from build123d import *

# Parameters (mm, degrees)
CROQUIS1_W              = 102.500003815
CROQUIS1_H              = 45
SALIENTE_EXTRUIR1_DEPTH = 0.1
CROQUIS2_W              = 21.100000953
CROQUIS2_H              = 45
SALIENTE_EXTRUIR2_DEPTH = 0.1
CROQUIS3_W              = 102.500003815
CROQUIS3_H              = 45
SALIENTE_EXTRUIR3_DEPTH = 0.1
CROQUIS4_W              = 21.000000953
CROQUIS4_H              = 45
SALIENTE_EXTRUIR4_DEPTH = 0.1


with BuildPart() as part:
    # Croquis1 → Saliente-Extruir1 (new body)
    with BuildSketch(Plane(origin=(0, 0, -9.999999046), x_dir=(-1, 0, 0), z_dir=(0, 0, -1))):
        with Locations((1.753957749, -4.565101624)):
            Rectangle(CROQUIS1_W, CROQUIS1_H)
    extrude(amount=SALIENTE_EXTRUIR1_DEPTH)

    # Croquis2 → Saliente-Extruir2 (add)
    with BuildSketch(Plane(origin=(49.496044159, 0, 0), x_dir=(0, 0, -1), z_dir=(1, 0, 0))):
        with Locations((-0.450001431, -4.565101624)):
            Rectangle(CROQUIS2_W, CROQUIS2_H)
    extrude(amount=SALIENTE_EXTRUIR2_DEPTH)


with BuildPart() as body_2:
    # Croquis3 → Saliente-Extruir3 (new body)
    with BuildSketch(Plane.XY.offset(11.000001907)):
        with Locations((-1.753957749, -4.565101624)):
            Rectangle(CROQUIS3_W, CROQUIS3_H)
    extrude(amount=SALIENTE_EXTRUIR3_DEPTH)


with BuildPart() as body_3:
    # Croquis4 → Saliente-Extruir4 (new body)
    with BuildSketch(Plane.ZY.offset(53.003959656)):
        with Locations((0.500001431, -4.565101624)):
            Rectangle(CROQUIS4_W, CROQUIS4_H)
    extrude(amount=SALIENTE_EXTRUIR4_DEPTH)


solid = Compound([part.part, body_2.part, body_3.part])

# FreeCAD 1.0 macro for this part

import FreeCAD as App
import Part
import Sketcher

V = App.Vector
Q = App.Units.Quantity

doc = App.newDocument("Part")
body = doc.addObject("PartDesign::Body", "Body")

# Sketch on XY plane
sketch1 = doc.addObject("Sketcher::SketchObject", "Sketch")
body.addObject(sketch1)
sketch1.AttachmentSupport = (doc.XY_Plane, [""])
sketch1.MapMode = "FlatFace"
sketch1.AttachmentOffset = App.Placement(V(0, 0, -9.999999), App.Rotation())
sketch1.addGeometry([
    Part.LineSegment(V(49, 18, 0), V(49, -27, 0)),
    Part.LineSegment(V(49, -27, 0), V(-53, -27, 0)),
    Part.LineSegment(V(-53, -27, 0), V(-53, 18, 0)),
    Part.LineSegment(V(-53, 18, 0), V(49, 18, 0)),
], False)
sketch1.addConstraint([
    Sketcher.Constraint("Coincident", 0, 2, 1, 1),
    Sketcher.Constraint("Coincident", 1, 2, 2, 1),
    Sketcher.Constraint("Coincident", 2, 2, 3, 1),
    Sketcher.Constraint("Coincident", 3, 2, 0, 1),
    Sketcher.Constraint("Vertical", 0),
    Sketcher.Constraint("Horizontal", 1),
    Sketcher.Constraint("Vertical", 2),
    Sketcher.Constraint("Horizontal", 3),
    Sketcher.Constraint("DistanceY", 0, 2, 0, 1, Q("45 mm")),
    Sketcher.Constraint("DistanceY", 0, 2, -1, 1, Q("27.065102 mm")),
    Sketcher.Constraint("DistanceX", 1, 2, 1, 1, Q("102.500004 mm")),
    Sketcher.Constraint("DistanceX", 1, 2, -1, 1, Q("53.00396 mm")),
])
pad1 = doc.addObject("PartDesign::Pad", "Pad")
body.addObject(pad1)
pad1.Profile = sketch1
pad1.Length = 0.1
pad1.Reversed = True

# Sketch on YZ plane
sketch2 = doc.addObject("Sketcher::SketchObject", "Sketch001")
body.addObject(sketch2)
sketch2.AttachmentSupport = (doc.YZ_Plane, [""])
sketch2.MapMode = "FlatFace"
sketch2.AttachmentOffset = App.Placement(V(0, 0, 49.496044), App.Rotation())
sketch2.addGeometry([
    Part.LineSegment(V(18, 11, 0), V(-27, 11, 0)),
    Part.LineSegment(V(-27, 11, 0), V(-27, -10, 0)),
    Part.LineSegment(V(-27, -10, 0), V(18, -10, 0)),
    Part.LineSegment(V(18, -10, 0), V(18, 11, 0)),
], False)
sketch2.addConstraint([
    Sketcher.Constraint("Coincident", 0, 2, 1, 1),
    Sketcher.Constraint("Coincident", 1, 2, 2, 1),
    Sketcher.Constraint("Coincident", 2, 2, 3, 1),
    Sketcher.Constraint("Coincident", 3, 2, 0, 1),
    Sketcher.Constraint("Horizontal", 0),
    Sketcher.Constraint("Vertical", 1),
    Sketcher.Constraint("Horizontal", 2),
    Sketcher.Constraint("Vertical", 3),
    Sketcher.Constraint("DistanceX", 0, 2, 0, 1, Q("45 mm")),
    Sketcher.Constraint("DistanceY", 1, 2, 1, 1, Q("21.100001 mm")),
    Sketcher.Constraint("DistanceY", -1, 1, 0, 2, Q("11.000002 mm")),
    Sketcher.Constraint("DistanceX", 0, 2, -1, 1, Q("27.065102 mm")),
])
pad2 = doc.addObject("PartDesign::Pad", "Pad001")
body.addObject(pad2)
pad2.Profile = sketch2
pad2.Length = 0.1
body2 = doc.addObject("PartDesign::Body", "Body001")

# Sketch on XY plane
sketch3 = doc.addObject("Sketcher::SketchObject", "Sketch002")
body2.addObject(sketch3)
sketch3.AttachmentSupport = (doc.getObject("XY_Plane001"), [""])
sketch3.MapMode = "FlatFace"
sketch3.AttachmentOffset = App.Placement(V(0, 0, 11.000002), App.Rotation())
sketch3.addGeometry([
    Part.LineSegment(V(-53, 18, 0), V(-53, -27, 0)),
    Part.LineSegment(V(-53, -27, 0), V(49, -27, 0)),
    Part.LineSegment(V(49, -27, 0), V(49, 18, 0)),
    Part.LineSegment(V(49, 18, 0), V(-53, 18, 0)),
], False)
sketch3.addConstraint([
    Sketcher.Constraint("Coincident", 0, 2, 1, 1),
    Sketcher.Constraint("Coincident", 1, 2, 2, 1),
    Sketcher.Constraint("Coincident", 2, 2, 3, 1),
    Sketcher.Constraint("Coincident", 3, 2, 0, 1),
    Sketcher.Constraint("Vertical", 0),
    Sketcher.Constraint("Horizontal", 1),
    Sketcher.Constraint("Vertical", 2),
    Sketcher.Constraint("Horizontal", 3),
    Sketcher.Constraint("DistanceY", 0, 2, 0, 1, Q("45 mm")),
    Sketcher.Constraint("DistanceY", 0, 2, -1, 1, Q("27.065102 mm")),
    Sketcher.Constraint("DistanceX", 1, 1, 1, 2, Q("102.500004 mm")),
    Sketcher.Constraint("DistanceX", 0, 2, -1, 1, Q("53.00396 mm")),
])
pad3 = doc.addObject("PartDesign::Pad", "Pad002")
body2.addObject(pad3)
pad3.Profile = sketch3
pad3.Length = 0.1
body3 = doc.addObject("PartDesign::Body", "Body002")

# Sketch on YZ plane
sketch4 = doc.addObject("Sketcher::SketchObject", "Sketch003")
body3.addObject(sketch4)
sketch4.AttachmentSupport = (doc.getObject("YZ_Plane002"), [""])
sketch4.MapMode = "FlatFace"
sketch4.AttachmentOffset = App.Placement(V(0, 0, -53.00396), App.Rotation())
sketch4.addGeometry([
    Part.LineSegment(V(18, -10, 0), V(-27, -10, 0)),
    Part.LineSegment(V(-27, -10, 0), V(-27, 11, 0)),
    Part.LineSegment(V(-27, 11, 0), V(18, 11, 0)),
    Part.LineSegment(V(18, 11, 0), V(18, -10, 0)),
], False)
sketch4.addConstraint([
    Sketcher.Constraint("Coincident", 0, 2, 1, 1),
    Sketcher.Constraint("Coincident", 1, 2, 2, 1),
    Sketcher.Constraint("Coincident", 2, 2, 3, 1),
    Sketcher.Constraint("Coincident", 3, 2, 0, 1),
    Sketcher.Constraint("Horizontal", 0),
    Sketcher.Constraint("Vertical", 1),
    Sketcher.Constraint("Horizontal", 2),
    Sketcher.Constraint("Vertical", 3),
    Sketcher.Constraint("DistanceX", 0, 2, 0, 1, Q("45 mm")),
    Sketcher.Constraint("DistanceY", 1, 1, 1, 2, Q("21.000001 mm")),
    Sketcher.Constraint("DistanceY", 0, 2, -1, 1, Q("9.999999 mm")),
    Sketcher.Constraint("DistanceX", 0, 2, -1, 1, Q("27.065102 mm")),
])
pad4 = doc.addObject("PartDesign::Pad", "Pad003")
body3.addObject(pad4)
pad4.Profile = sketch4
pad4.Length = 0.1
pad4.Reversed = True

doc.recompute()
